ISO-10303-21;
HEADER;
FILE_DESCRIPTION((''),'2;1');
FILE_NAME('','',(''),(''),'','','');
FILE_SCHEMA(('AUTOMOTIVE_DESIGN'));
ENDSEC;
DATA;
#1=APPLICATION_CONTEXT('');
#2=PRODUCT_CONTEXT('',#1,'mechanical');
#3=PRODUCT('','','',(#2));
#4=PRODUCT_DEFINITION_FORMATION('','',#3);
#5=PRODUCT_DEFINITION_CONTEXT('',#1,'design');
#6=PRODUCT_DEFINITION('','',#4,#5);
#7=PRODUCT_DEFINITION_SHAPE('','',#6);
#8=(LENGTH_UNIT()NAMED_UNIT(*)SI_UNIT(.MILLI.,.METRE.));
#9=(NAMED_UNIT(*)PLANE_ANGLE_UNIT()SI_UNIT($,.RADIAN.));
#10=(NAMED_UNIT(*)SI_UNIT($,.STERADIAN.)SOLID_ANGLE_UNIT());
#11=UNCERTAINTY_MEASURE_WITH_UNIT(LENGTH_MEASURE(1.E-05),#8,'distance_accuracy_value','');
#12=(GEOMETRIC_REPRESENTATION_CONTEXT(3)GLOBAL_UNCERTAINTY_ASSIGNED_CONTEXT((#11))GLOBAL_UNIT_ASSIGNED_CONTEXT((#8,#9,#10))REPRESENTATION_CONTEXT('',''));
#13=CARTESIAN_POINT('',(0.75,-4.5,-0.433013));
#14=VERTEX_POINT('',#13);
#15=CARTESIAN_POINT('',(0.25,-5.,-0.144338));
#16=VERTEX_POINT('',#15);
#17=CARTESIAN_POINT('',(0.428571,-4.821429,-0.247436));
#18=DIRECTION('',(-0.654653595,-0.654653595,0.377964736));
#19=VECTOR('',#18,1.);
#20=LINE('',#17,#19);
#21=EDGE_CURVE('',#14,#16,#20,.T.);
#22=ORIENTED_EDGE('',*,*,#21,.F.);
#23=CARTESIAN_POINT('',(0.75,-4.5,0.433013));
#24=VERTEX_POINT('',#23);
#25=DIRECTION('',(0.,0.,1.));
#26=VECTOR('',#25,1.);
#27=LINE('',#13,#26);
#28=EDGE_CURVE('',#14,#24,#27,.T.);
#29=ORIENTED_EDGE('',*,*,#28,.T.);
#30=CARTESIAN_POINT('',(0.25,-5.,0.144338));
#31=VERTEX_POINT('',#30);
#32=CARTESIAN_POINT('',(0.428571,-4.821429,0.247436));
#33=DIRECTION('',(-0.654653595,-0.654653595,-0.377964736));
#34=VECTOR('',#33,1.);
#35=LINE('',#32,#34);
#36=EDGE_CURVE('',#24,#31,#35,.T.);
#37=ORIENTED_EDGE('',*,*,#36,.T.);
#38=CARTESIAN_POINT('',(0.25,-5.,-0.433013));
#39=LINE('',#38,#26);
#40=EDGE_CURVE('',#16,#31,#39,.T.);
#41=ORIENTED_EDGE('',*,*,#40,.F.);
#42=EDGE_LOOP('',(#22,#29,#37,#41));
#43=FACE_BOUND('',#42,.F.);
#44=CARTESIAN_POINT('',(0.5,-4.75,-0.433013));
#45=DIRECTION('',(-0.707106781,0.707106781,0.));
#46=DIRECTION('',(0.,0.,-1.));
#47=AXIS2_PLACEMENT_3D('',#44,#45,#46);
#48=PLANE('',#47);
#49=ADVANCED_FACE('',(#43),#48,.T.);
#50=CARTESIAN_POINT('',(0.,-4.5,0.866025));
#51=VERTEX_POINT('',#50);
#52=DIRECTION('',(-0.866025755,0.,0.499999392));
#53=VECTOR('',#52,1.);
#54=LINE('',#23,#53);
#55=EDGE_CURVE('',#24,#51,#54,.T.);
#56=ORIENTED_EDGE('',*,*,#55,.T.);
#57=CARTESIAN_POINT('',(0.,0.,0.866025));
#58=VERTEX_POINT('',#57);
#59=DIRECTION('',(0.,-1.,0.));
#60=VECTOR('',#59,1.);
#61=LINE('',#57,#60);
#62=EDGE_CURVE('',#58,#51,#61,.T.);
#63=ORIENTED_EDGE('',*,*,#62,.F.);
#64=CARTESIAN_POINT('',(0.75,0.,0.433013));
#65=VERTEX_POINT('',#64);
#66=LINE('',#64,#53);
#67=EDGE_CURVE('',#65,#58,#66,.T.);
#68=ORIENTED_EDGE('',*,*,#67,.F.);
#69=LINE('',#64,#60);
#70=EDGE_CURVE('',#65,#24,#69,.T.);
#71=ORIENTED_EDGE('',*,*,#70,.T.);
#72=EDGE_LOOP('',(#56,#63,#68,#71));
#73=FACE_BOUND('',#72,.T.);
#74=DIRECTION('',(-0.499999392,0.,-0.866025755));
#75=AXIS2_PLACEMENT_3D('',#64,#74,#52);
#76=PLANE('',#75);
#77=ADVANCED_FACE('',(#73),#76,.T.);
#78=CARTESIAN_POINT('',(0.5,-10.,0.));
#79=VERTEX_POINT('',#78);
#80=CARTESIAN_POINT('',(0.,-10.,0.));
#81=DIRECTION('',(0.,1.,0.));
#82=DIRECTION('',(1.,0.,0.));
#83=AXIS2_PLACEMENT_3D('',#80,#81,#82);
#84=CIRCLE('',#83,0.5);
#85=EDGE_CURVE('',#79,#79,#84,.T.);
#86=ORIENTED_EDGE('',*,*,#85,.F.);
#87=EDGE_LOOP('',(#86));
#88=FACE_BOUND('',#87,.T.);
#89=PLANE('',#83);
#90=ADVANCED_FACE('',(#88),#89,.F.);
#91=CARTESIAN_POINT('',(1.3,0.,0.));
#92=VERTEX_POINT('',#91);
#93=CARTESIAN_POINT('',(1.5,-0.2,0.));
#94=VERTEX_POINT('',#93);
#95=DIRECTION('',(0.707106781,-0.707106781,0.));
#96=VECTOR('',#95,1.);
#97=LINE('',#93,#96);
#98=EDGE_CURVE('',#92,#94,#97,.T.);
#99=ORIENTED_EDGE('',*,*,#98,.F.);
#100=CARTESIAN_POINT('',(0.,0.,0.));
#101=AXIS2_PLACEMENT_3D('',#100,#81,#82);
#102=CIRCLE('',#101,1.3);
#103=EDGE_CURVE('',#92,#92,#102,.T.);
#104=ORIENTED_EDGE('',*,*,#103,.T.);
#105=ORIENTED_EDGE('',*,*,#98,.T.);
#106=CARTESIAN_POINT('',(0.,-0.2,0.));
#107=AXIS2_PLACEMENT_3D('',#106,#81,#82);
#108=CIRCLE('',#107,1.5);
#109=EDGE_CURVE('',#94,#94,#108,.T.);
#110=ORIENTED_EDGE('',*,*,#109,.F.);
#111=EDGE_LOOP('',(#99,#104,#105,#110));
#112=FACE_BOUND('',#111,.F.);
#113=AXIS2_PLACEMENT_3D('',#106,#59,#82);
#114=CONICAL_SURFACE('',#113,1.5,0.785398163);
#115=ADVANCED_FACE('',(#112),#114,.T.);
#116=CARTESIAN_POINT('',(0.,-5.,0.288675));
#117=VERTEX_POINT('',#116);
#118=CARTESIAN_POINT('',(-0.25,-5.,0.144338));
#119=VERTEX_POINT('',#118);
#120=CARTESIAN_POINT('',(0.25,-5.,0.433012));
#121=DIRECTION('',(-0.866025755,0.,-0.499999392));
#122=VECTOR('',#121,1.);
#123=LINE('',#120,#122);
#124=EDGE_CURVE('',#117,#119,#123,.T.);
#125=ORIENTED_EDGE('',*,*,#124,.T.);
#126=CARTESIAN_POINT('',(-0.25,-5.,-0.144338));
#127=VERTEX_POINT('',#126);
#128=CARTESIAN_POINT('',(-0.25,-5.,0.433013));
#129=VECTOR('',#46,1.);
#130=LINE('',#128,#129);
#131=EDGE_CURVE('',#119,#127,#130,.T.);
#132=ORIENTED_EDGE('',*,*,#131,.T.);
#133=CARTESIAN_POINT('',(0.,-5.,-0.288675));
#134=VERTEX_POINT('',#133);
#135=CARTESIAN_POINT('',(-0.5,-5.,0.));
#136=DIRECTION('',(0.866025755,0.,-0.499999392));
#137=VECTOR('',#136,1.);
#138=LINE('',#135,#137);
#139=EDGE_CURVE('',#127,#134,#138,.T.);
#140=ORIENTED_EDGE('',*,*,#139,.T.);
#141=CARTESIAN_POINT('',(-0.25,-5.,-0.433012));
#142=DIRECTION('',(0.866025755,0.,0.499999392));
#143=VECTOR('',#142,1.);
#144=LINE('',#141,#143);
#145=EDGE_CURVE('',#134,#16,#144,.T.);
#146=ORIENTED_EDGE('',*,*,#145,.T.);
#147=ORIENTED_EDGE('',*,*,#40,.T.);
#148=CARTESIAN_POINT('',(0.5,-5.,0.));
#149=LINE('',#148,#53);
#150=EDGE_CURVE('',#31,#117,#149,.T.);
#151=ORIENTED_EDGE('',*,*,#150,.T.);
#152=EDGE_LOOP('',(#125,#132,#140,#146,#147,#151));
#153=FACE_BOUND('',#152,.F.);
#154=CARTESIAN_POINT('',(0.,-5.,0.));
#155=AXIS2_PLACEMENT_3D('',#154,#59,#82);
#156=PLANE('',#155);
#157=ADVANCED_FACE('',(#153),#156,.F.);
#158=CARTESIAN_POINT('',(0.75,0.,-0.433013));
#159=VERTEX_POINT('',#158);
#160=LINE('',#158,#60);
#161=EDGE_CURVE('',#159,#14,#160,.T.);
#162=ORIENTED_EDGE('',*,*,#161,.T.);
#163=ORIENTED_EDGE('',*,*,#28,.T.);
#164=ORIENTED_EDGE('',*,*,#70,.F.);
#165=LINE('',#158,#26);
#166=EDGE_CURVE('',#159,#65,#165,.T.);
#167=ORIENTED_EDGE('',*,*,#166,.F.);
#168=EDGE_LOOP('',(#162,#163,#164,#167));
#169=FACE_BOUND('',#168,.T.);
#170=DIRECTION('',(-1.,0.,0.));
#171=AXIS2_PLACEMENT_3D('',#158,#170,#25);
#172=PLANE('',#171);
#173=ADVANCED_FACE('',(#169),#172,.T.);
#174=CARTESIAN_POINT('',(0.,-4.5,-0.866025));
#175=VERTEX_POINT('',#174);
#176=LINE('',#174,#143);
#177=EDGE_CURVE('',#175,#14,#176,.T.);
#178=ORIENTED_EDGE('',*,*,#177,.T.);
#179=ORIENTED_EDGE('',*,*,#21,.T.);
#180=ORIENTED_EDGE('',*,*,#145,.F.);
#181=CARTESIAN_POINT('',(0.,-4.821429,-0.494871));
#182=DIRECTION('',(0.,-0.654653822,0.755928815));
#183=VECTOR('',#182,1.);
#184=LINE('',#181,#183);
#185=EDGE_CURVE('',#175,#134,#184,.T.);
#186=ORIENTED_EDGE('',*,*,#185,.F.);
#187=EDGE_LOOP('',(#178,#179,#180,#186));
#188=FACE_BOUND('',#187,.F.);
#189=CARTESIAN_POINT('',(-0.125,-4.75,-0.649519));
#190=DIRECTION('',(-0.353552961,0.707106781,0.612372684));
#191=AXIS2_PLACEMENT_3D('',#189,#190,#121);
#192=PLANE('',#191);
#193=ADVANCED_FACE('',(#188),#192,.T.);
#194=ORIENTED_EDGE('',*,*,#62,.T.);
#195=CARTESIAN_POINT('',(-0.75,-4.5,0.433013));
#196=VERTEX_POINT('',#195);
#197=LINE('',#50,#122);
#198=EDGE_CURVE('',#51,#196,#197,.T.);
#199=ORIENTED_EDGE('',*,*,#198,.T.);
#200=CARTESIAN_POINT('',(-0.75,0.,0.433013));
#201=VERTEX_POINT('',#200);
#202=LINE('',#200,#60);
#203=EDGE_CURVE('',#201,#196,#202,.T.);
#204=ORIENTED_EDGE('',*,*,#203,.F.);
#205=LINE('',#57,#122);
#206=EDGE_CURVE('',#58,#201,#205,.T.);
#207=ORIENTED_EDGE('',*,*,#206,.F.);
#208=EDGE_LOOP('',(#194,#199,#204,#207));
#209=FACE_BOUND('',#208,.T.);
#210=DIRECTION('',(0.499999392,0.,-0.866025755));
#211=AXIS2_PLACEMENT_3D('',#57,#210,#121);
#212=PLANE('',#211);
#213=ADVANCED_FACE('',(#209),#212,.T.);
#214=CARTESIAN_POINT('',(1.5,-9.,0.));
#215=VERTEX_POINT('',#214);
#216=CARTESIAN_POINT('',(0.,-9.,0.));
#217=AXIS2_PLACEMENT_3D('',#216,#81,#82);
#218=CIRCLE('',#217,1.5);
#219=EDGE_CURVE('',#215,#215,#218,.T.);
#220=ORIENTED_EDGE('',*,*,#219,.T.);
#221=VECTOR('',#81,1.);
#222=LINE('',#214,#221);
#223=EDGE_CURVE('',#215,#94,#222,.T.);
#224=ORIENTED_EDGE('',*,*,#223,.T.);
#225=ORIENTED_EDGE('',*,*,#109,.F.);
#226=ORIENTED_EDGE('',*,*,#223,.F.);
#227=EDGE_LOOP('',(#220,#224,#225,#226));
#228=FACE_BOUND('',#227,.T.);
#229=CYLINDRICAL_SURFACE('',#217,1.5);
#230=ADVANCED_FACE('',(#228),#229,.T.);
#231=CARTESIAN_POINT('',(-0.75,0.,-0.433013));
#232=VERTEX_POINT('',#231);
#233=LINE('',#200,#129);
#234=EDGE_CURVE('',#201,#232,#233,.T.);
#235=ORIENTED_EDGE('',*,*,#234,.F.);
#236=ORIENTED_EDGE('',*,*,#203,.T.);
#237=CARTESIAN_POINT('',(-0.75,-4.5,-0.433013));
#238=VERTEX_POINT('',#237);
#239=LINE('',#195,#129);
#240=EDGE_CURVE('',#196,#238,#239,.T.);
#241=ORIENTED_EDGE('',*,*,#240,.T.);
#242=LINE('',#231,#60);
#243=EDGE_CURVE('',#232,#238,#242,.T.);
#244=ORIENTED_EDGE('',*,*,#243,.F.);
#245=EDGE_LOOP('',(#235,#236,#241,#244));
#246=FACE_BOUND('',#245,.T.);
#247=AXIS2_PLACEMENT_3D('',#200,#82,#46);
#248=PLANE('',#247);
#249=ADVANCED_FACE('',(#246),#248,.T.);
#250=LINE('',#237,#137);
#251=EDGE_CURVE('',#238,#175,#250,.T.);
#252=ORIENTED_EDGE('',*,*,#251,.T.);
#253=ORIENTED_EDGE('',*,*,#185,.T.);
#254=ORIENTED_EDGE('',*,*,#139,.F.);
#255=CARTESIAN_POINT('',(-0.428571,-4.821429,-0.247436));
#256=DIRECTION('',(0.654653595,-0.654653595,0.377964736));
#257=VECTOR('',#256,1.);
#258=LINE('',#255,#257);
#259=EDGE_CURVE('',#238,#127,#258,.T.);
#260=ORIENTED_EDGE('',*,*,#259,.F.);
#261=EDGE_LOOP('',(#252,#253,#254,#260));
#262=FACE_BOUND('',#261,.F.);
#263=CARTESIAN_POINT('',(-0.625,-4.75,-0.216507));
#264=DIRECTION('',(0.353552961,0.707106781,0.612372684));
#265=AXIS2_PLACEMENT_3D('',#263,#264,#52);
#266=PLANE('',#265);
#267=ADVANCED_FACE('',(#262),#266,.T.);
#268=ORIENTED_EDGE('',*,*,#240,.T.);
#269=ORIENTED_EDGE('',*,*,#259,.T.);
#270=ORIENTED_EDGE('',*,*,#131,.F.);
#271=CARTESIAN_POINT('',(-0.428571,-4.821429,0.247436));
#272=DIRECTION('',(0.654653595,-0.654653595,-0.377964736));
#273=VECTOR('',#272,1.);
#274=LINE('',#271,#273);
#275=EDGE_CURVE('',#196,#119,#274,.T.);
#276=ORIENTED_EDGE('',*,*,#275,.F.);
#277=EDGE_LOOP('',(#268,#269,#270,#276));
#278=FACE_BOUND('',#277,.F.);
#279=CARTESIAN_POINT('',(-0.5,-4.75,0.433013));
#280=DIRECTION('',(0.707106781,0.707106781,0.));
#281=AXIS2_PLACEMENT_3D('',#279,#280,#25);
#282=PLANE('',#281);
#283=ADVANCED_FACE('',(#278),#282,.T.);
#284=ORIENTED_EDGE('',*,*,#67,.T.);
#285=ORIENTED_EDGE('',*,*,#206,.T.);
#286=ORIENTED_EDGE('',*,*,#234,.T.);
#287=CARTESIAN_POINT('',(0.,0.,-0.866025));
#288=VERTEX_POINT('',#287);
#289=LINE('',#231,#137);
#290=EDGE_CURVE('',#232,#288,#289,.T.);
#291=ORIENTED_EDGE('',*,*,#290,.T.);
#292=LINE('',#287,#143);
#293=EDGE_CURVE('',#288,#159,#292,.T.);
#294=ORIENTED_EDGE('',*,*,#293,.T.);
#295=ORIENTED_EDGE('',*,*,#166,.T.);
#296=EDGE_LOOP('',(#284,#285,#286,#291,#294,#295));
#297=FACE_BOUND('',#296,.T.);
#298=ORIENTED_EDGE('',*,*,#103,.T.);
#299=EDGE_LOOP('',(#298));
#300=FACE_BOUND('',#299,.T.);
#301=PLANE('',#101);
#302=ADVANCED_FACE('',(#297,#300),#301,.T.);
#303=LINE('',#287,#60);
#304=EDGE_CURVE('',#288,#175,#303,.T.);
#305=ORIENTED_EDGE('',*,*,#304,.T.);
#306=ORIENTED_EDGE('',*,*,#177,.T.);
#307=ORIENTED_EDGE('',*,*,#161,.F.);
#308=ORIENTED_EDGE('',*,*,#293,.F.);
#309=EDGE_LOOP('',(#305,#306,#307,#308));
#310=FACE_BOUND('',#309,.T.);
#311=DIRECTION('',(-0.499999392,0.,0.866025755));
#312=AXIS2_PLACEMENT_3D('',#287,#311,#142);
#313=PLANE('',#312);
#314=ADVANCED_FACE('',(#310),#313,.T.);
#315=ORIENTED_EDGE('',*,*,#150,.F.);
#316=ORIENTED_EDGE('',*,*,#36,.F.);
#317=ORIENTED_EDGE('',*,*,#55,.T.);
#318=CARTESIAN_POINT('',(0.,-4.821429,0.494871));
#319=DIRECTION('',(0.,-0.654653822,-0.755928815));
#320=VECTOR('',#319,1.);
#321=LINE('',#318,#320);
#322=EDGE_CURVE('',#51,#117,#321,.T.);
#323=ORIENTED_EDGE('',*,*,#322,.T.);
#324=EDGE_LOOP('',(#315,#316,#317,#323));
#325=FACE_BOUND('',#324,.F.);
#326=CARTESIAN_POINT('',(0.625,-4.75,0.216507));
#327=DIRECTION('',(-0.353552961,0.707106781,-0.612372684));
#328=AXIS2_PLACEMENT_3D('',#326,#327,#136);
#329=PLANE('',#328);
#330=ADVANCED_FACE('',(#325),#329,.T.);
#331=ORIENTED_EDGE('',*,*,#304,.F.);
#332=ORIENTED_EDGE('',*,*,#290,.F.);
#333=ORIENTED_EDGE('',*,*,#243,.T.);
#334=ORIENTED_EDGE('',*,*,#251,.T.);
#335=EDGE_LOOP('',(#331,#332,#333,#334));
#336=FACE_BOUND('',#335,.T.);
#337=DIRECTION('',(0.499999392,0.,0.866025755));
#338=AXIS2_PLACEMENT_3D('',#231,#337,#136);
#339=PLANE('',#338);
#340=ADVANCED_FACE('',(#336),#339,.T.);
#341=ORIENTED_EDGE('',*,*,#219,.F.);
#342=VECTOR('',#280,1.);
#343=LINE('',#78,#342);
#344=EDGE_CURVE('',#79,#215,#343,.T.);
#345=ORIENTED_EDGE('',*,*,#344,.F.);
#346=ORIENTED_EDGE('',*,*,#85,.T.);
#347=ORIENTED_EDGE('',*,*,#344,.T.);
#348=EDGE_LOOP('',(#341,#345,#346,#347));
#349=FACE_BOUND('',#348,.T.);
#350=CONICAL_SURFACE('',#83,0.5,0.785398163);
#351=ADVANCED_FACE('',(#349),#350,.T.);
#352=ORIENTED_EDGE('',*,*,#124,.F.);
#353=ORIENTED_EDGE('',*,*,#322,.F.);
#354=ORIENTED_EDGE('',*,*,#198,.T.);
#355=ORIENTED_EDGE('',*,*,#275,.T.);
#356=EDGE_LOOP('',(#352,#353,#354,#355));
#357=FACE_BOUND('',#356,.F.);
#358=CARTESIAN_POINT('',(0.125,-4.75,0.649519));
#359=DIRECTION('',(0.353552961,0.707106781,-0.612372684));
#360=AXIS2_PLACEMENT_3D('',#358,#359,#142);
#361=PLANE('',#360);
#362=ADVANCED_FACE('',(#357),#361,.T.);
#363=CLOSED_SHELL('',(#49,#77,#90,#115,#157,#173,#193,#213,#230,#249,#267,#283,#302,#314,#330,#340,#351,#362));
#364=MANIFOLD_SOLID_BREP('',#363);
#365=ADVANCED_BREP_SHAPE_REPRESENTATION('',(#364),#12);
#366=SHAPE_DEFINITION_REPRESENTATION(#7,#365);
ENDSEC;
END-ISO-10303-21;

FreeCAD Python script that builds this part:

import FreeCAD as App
import Part
import Sketcher

V = App.Vector
Q = App.Units.Quantity


def edges_at(feature, points):
    """Names of the edges that pass closest to the given points."""
    edges = feature.Shape.Edges
    near = lambda p: min(range(len(edges)), key=lambda i: edges[i].distToShape(Part.Vertex(*p))[0])
    return sorted({f"Edge{near(p) + 1}" for p in points})


def add_polygon(sketch, points):
    """Adds a closed chain of lines whose ends are joined by coincident constraints."""
    first, n = sketch.GeometryCount, len(points)
    for a, b in zip(points, points[1:] + points[:1]):
        sketch.addGeometry(Part.LineSegment(App.Vector(*a, 0), App.Vector(*b, 0)), False)
    for i in range(n):
        sketch.addConstraint(Sketcher.Constraint("Coincident", first + i, 2, first + (i + 1) % n, 1))

doc = App.newDocument("Part")
params = doc.addObject("Spreadsheet::Sheet", "Params")
for row, (alias, value) in enumerate([
    ("sketch1_height", "9 mm"),
    ("sketch1_height2", "10 mm"),
    ("sketch1_width", "1.5 mm"),
    ("revolution_angle", "360 deg"),
    ("pocket1_length", "5 mm"),
    ("chamfer_size", "0.5 mm"),
    ("chamfer2_size", "0.2 mm"),
], start=1):
    params.set(f"A{row}", alias)
    params.set(f"B{row}", "=" + value)
    params.setAlias(f"B{row}", alias)

body = doc.addObject("PartDesign::Body", "Body")

# Sketch on XY plane
sketch1 = body.newObject("Sketcher::SketchObject", "Sketch")
sketch1.AttachmentSupport = (doc.getObject("XY_Plane"), [""])
sketch1.MapMode = "FlatFace"
add_polygon(sketch1, [(0.5, -10), (1.5, -9), (1.5, 0), (0, 0), (0, -10)])  # lines 0-4
sketch1.addConstraint(Sketcher.Constraint("Vertical", 1))
sketch1.addConstraint(Sketcher.Constraint("Horizontal", 2))
sketch1.addConstraint(Sketcher.Constraint("Vertical", 3))
sketch1.addConstraint(Sketcher.Constraint("Horizontal", 4))
sketch1.addConstraint(Sketcher.Constraint("Coincident", 2, 2, -1, 1))
sketch1.addConstraint(Sketcher.Constraint("DistanceY", 1, 1, 1, 2, 9.0))
sketch1.addConstraint(Sketcher.Constraint("DistanceY", 3, 2, 3, 1, 10.0))
sketch1.addConstraint(Sketcher.Constraint("Angle", 0, Q("45 deg")))
sketch1.addConstraint(Sketcher.Constraint("DistanceX", 2, 2, 2, 1, 1.5))
sketch1.setExpression("Constraints[10]", "Params.sketch1_height")
sketch1.setExpression("Constraints[11]", "Params.sketch1_height2")
sketch1.setExpression("Constraints[13]", "Params.sketch1_width")
revolution = body.newObject("PartDesign::Revolution", "Revolution")
revolution.Profile = sketch1
revolution.ReferenceAxis = (sketch1, ["V_Axis"])
revolution.setExpression("Angle", "Params.revolution_angle")

# Sketch on XZ plane
sketch2 = body.newObject("Sketcher::SketchObject", "Sketch001")
sketch2.AttachmentSupport = (doc.getObject("XZ_Plane"), [""])
sketch2.MapMode = "FlatFace"
add_polygon(sketch2, [(0.75, -0.433013), (0.75, 0.433013), (0, 0.866025), (-0.75, 0.433013), (-0.75, -0.433013), (0, -0.866025)])  # lines 0-5
sketch2.addConstraint(Sketcher.Constraint("Vertical", 0))
sketch2.addConstraint(Sketcher.Constraint("Vertical", 3))
sketch2.addConstraint(Sketcher.Constraint("Symmetric", 0, 2, 3, 2, -1, 1))
sketch2.addConstraint(Sketcher.Constraint("Symmetric", 1, 2, 4, 2, -1, 1))
sketch2.addConstraint(Sketcher.Constraint("PointOnObject", 1, 2, -2))
sketch2.addConstraint(Sketcher.Constraint("Parallel", 2, 5))
sketch2.addConstraint(Sketcher.Constraint("Horizontal", 0, 2, 2, 2))
sketch2.addConstraint(Sketcher.Constraint("DistanceX", 2, 2, 0, 2, 1.5))
sketch2.addConstraint(Sketcher.Constraint("DistanceY", 0, 1, 0, 2, 0.866026))
sketch2.addConstraint(Sketcher.Constraint("DistanceY", 4, 2, 1, 2, 1.73205))
pocket1 = body.newObject("PartDesign::Pocket", "Pocket")
pocket1.Profile = sketch2
pocket1.setExpression("Length", "Params.pocket1_length")
pocket1.Reversed = True
doc.recompute()

chamfer = body.newObject("PartDesign::Chamfer", "Chamfer")
chamfer.Base = (pocket1, edges_at(pocket1, [
    (0.75, -5, 0),
    (0.375, -5, 0.65),
    (-0.375, -5, 0.65),
    (-0.75, -5, 0),
    (-0.375, -5, -0.65),
    (0.375, -5, -0.65),
]))
chamfer.setExpression("Size", "Params.chamfer_size")
doc.recompute()

chamfer2 = body.newObject("PartDesign::Chamfer", "Chamfer001")
chamfer2.Base = (chamfer, edges_at(chamfer, [(-1.5, 0, 0)]))
chamfer2.setExpression("Size", "Params.chamfer2_size")

doc.recompute()
